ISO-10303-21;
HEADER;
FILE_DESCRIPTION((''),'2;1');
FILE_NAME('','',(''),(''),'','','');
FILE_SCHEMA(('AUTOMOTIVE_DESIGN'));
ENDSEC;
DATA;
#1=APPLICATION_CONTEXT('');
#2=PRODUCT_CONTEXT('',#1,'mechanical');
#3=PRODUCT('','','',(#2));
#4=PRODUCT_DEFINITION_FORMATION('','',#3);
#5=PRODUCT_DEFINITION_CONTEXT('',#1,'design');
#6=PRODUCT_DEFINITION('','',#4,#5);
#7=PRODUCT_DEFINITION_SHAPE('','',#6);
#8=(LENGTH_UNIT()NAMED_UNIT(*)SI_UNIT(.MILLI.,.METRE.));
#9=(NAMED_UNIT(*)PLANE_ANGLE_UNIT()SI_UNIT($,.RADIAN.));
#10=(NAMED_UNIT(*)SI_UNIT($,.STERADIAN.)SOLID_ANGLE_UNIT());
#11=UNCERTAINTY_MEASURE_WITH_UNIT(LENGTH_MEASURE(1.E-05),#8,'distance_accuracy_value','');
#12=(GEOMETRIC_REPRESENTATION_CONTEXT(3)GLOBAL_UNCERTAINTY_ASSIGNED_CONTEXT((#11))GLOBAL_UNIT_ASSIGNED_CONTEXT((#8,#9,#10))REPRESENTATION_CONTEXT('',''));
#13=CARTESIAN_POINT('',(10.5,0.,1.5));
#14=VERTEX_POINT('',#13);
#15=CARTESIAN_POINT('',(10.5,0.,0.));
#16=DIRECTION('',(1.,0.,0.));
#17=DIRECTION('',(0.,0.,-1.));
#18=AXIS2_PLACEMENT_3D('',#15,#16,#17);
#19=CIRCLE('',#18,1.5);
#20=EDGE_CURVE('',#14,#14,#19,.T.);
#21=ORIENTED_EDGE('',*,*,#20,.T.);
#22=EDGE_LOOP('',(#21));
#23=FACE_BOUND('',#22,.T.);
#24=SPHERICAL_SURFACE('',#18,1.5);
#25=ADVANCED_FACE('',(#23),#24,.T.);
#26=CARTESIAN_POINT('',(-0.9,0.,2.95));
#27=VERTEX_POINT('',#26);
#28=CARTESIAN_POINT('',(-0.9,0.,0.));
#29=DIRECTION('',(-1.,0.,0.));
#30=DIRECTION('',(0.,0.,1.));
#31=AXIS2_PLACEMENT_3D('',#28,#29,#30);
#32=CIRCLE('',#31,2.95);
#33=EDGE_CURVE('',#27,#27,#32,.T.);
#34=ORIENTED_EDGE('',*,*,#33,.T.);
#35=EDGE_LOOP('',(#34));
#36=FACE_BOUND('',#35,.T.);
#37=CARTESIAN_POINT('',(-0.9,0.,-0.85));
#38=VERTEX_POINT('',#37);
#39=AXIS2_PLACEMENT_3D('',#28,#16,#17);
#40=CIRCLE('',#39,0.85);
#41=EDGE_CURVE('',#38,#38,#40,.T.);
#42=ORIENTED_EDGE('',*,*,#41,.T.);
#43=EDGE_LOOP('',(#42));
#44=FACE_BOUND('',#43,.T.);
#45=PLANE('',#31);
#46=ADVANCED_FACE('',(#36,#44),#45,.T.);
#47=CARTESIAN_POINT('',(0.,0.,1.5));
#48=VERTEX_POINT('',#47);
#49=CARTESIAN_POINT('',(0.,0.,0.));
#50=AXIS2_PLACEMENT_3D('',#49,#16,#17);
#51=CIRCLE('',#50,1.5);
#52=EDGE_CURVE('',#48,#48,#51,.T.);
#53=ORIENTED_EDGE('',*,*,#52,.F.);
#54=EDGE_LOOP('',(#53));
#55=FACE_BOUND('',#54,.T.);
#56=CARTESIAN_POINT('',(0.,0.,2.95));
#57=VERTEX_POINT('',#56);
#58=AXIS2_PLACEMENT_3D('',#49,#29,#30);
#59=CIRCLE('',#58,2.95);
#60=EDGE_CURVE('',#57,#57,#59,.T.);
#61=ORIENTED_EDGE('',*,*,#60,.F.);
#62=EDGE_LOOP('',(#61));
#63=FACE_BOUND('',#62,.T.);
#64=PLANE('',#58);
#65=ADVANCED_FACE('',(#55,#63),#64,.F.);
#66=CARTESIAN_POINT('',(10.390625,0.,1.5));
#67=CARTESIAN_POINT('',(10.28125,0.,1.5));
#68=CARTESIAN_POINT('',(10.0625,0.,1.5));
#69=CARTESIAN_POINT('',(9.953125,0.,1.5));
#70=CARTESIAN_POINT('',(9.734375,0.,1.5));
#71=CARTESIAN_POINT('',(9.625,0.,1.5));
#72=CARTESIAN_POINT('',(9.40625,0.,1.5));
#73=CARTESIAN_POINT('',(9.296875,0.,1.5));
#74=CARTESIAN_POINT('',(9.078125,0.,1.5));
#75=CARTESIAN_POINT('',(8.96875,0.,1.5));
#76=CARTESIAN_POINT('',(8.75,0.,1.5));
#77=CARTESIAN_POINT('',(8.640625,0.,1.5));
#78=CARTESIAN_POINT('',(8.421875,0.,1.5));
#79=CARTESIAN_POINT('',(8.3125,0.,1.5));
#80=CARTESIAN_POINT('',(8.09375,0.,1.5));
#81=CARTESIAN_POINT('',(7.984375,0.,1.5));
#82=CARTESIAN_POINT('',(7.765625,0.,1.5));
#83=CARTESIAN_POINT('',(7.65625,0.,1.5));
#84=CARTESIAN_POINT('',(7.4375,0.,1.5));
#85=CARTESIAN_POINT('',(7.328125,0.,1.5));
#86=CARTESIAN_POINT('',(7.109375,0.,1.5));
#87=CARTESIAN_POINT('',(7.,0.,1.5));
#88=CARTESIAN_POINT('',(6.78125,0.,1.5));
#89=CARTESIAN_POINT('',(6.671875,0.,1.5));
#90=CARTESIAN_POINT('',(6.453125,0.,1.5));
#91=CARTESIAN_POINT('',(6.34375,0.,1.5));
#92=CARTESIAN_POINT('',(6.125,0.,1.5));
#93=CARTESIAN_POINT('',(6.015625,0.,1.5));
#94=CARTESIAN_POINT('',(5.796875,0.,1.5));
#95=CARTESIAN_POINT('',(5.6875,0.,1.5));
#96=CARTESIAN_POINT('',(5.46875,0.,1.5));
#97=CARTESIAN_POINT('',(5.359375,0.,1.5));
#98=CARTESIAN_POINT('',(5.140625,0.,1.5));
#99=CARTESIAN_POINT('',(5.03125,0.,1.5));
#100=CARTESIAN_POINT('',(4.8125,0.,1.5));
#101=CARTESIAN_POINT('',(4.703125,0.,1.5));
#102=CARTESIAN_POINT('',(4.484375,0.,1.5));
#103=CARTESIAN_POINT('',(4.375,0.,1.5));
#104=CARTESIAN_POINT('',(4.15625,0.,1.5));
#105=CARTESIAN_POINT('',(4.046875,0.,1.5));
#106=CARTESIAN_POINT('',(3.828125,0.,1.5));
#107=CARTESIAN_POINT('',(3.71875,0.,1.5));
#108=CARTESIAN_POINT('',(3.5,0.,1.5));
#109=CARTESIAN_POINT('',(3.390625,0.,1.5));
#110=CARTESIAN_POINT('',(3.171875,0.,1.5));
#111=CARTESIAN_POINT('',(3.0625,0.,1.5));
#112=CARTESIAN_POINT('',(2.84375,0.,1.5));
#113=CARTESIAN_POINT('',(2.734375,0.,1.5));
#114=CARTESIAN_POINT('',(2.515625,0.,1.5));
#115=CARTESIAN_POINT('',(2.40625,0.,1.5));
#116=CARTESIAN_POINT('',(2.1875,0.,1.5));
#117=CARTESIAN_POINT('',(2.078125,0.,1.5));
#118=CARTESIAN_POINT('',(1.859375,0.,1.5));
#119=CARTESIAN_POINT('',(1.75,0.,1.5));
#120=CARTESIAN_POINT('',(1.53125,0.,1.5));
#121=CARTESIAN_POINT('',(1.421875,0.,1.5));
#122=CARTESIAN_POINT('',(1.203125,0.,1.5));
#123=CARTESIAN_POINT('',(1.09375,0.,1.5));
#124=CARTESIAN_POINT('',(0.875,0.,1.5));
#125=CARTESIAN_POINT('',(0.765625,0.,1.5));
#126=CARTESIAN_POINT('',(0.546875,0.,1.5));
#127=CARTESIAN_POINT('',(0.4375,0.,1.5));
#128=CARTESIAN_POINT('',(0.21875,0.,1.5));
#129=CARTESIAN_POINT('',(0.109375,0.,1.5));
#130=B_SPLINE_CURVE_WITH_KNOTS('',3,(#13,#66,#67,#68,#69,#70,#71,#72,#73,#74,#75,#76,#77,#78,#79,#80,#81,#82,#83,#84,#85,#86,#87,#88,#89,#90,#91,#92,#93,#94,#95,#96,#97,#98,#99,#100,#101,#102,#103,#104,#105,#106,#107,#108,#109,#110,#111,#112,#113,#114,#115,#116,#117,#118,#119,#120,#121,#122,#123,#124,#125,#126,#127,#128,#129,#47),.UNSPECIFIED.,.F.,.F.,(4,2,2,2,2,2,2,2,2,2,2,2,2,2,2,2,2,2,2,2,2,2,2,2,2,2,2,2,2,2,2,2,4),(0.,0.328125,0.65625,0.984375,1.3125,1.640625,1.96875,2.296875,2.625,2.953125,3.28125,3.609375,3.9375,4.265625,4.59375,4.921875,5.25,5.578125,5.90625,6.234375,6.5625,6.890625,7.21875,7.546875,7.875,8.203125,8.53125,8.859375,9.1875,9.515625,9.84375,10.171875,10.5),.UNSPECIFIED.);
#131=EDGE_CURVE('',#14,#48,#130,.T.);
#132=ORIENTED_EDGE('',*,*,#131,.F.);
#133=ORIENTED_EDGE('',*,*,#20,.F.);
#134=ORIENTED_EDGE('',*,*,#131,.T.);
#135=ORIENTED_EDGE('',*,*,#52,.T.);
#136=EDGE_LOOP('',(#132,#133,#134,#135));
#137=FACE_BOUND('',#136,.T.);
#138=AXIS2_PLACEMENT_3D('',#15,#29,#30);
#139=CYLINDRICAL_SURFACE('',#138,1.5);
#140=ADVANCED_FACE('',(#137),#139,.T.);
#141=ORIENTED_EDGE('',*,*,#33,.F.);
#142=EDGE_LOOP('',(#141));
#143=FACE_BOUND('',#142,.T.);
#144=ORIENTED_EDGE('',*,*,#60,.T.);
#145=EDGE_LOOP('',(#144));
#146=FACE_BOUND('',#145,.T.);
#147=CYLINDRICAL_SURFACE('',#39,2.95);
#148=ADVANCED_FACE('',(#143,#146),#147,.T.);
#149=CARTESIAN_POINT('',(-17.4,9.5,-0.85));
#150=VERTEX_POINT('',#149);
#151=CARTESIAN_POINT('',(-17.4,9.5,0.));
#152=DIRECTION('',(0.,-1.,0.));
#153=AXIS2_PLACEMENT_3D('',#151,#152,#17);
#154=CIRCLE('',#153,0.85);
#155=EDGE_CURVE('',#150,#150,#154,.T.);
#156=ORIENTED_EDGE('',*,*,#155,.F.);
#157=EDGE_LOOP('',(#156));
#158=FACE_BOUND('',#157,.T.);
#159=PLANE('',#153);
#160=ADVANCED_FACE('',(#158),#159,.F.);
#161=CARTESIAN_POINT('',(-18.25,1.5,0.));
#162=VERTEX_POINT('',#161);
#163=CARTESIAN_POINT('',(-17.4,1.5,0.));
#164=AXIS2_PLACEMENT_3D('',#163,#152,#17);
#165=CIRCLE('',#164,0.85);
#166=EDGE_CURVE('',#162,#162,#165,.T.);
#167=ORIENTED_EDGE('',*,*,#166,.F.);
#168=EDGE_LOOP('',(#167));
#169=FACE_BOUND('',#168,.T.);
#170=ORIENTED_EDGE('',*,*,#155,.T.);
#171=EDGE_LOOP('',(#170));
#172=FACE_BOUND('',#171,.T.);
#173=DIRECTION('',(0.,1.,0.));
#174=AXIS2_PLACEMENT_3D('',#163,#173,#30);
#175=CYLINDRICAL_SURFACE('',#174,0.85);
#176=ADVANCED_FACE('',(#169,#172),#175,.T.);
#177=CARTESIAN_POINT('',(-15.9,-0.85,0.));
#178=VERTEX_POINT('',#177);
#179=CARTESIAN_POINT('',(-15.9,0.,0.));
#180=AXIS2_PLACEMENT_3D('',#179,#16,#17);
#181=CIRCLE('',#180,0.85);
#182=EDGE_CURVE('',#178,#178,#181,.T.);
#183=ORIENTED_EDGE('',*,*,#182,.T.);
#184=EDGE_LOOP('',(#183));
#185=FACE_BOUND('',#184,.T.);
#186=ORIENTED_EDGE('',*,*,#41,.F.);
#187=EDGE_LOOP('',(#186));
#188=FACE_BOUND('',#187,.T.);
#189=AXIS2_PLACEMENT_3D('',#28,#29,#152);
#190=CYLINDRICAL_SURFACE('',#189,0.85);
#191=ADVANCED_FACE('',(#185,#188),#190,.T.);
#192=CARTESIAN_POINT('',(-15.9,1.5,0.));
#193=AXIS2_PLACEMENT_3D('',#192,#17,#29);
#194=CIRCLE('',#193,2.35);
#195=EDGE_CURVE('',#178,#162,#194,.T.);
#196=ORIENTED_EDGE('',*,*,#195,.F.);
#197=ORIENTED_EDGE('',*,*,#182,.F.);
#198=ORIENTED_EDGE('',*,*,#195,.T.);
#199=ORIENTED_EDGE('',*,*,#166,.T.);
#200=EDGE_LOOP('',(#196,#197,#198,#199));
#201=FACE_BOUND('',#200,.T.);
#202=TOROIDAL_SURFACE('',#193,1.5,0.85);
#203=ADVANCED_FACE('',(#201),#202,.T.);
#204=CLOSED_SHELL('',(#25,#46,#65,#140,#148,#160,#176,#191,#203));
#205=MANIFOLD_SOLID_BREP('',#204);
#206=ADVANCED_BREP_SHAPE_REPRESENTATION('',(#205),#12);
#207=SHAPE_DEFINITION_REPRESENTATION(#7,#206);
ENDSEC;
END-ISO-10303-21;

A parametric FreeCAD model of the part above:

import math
import FreeCAD as App
import Part
import Sketcher

V = App.Vector
Q = App.Units.Quantity

doc = App.newDocument("Part")
body = doc.addObject("PartDesign::Body", "Body")

# Sketch on YZ plane
sketch1 = body.newObject("Sketcher::SketchObject", "Sketch")
sketch1.AttachmentSupport = (doc.getObject("YZ_Plane"), [""])
sketch1.MapMode = "FlatFace"
sketch1.addGeometry(Part.Circle(V(0, 0, 0), V(0, 0, 1), 1.5), False)
sketch1.addConstraint(Sketcher.Constraint("Coincident", 0, 3, -1, 1))
sketch1.addConstraint(Sketcher.Constraint("Diameter", 0, Q("3 mm")))
pad1 = body.newObject("PartDesign::Pad", "Pad")
pad1.Profile = sketch1
pad1.Length = 10.5

# Sketch on YZ plane
sketch2 = body.newObject("Sketcher::SketchObject", "Sketch001")
sketch2.AttachmentSupport = (doc.getObject("YZ_Plane"), [""])
sketch2.MapMode = "FlatFace"
sketch2.AttachmentOffset = App.Placement(V(0, 0, 10.5), App.Rotation())
sketch2.addGeometry(Part.LineSegment(V(0, 1.5, 0), V(0, -1.5, 0)), False)
sketch2.addGeometry(Part.ArcOfCircle(Part.Circle(V(0, 0, 0), V(0, 0, 1), 1.5), math.radians(-90), math.radians(90)), False)
sketch2.addConstraint(Sketcher.Constraint("Coincident", 0, 1, 1, 2))
sketch2.addConstraint(Sketcher.Constraint("Coincident", 1, 1, 0, 2))
sketch2.addConstraint(Sketcher.Constraint("Vertical", 0))
sketch2.addConstraint(Sketcher.Constraint("Coincident", 1, 3, -1, 1))
sketch2.addConstraint(Sketcher.Constraint("PointOnObject", 0, 1, -2))
sketch2.addConstraint(Sketcher.Constraint("Radius", 1, Q("1.5 mm")))
revolution = body.newObject("PartDesign::Revolution", "Revolution")
revolution.Profile = sketch2
revolution.ReferenceAxis = (sketch2, ["V_Axis"])
revolution.Angle = 360

# Sketch on YZ plane
sketch3 = body.newObject("Sketcher::SketchObject", "Sketch002")
sketch3.AttachmentSupport = (doc.getObject("YZ_Plane"), [""])
sketch3.MapMode = "FlatFace"
sketch3.addGeometry(Part.Circle(V(0, 0, 0), V(0, 0, 1), 3), False)
sketch3.addConstraint(Sketcher.Constraint("Coincident", 0, 3, -1, 1))
sketch3.addConstraint(Sketcher.Constraint("Diameter", 0, Q("5.9 mm")))
pad2 = body.newObject("PartDesign::Pad", "Pad001")
pad2.Profile = sketch3
pad2.Length = 0.9
pad2.Reversed = True

# Sketch on YZ plane
sketch4 = body.newObject("Sketcher::SketchObject", "Sketch003")
sketch4.AttachmentSupport = (doc.getObject("YZ_Plane"), [""])
sketch4.MapMode = "FlatFace"
sketch4.AttachmentOffset = App.Placement(V(0, 0, -0.9), App.Rotation())
sketch4.addGeometry(Part.Circle(V(0, 0, 0), V(0, 0, 1), 0.8), False)
sketch4.addConstraint(Sketcher.Constraint("Coincident", 0, 3, -1, 1))
sketch4.addConstraint(Sketcher.Constraint("Diameter", 0, Q("1.7 mm")))

# Sketch on XY plane
sketch5 = body.newObject("Sketcher::SketchObject", "Sketch004")
sketch5.AttachmentSupport = (doc.getObject("XY_Plane"), [""])
sketch5.MapMode = "FlatFace"
sketch5.addGeometry(Part.LineSegment(V(-0.9, 0, 0), V(-15.9, 0, 0)), False)
sketch5.addGeometry(Part.ArcOfCircle(Part.Circle(V(-15.9, 1.5, 0), V(0, 0, 1), 1.5), math.radians(180), math.radians(270)), False)
sketch5.addGeometry(Part.LineSegment(V(-17.4, 1.5, 0), V(-17.4, 9.5, 0)), False)
sketch5.addConstraint(Sketcher.Constraint("Tangent", 0, 2, 1, 2))
sketch5.addConstraint(Sketcher.Constraint("Tangent", 1, 1, 2, 1))
sketch5.addConstraint(Sketcher.Constraint("Horizontal", 0))
sketch5.addConstraint(Sketcher.Constraint("Vertical", 2))
sketch5.addConstraint(Sketcher.Constraint("PointOnObject", 0, 1, -1))
sketch5.addConstraint(Sketcher.Constraint("Radius", 1, Q("1.5 mm")))
sketch5.addConstraint(Sketcher.Constraint("DistanceX", 0, 2, 0, 1, Q("15 mm")))
sketch5.addConstraint(Sketcher.Constraint("DistanceY", 2, 1, 2, 2, Q("8 mm")))
sketch5.addConstraint(Sketcher.Constraint("DistanceX", 1, 3, -1, 1, Q("15.9 mm")))
doc.recompute()

additivepipe = body.newObject("PartDesign::AdditivePipe", "AdditivePipe")
additivepipe.Profile = sketch4
additivepipe.Spine = (sketch5, ["Edge1", "Edge2", "Edge3"])

doc.recompute()
